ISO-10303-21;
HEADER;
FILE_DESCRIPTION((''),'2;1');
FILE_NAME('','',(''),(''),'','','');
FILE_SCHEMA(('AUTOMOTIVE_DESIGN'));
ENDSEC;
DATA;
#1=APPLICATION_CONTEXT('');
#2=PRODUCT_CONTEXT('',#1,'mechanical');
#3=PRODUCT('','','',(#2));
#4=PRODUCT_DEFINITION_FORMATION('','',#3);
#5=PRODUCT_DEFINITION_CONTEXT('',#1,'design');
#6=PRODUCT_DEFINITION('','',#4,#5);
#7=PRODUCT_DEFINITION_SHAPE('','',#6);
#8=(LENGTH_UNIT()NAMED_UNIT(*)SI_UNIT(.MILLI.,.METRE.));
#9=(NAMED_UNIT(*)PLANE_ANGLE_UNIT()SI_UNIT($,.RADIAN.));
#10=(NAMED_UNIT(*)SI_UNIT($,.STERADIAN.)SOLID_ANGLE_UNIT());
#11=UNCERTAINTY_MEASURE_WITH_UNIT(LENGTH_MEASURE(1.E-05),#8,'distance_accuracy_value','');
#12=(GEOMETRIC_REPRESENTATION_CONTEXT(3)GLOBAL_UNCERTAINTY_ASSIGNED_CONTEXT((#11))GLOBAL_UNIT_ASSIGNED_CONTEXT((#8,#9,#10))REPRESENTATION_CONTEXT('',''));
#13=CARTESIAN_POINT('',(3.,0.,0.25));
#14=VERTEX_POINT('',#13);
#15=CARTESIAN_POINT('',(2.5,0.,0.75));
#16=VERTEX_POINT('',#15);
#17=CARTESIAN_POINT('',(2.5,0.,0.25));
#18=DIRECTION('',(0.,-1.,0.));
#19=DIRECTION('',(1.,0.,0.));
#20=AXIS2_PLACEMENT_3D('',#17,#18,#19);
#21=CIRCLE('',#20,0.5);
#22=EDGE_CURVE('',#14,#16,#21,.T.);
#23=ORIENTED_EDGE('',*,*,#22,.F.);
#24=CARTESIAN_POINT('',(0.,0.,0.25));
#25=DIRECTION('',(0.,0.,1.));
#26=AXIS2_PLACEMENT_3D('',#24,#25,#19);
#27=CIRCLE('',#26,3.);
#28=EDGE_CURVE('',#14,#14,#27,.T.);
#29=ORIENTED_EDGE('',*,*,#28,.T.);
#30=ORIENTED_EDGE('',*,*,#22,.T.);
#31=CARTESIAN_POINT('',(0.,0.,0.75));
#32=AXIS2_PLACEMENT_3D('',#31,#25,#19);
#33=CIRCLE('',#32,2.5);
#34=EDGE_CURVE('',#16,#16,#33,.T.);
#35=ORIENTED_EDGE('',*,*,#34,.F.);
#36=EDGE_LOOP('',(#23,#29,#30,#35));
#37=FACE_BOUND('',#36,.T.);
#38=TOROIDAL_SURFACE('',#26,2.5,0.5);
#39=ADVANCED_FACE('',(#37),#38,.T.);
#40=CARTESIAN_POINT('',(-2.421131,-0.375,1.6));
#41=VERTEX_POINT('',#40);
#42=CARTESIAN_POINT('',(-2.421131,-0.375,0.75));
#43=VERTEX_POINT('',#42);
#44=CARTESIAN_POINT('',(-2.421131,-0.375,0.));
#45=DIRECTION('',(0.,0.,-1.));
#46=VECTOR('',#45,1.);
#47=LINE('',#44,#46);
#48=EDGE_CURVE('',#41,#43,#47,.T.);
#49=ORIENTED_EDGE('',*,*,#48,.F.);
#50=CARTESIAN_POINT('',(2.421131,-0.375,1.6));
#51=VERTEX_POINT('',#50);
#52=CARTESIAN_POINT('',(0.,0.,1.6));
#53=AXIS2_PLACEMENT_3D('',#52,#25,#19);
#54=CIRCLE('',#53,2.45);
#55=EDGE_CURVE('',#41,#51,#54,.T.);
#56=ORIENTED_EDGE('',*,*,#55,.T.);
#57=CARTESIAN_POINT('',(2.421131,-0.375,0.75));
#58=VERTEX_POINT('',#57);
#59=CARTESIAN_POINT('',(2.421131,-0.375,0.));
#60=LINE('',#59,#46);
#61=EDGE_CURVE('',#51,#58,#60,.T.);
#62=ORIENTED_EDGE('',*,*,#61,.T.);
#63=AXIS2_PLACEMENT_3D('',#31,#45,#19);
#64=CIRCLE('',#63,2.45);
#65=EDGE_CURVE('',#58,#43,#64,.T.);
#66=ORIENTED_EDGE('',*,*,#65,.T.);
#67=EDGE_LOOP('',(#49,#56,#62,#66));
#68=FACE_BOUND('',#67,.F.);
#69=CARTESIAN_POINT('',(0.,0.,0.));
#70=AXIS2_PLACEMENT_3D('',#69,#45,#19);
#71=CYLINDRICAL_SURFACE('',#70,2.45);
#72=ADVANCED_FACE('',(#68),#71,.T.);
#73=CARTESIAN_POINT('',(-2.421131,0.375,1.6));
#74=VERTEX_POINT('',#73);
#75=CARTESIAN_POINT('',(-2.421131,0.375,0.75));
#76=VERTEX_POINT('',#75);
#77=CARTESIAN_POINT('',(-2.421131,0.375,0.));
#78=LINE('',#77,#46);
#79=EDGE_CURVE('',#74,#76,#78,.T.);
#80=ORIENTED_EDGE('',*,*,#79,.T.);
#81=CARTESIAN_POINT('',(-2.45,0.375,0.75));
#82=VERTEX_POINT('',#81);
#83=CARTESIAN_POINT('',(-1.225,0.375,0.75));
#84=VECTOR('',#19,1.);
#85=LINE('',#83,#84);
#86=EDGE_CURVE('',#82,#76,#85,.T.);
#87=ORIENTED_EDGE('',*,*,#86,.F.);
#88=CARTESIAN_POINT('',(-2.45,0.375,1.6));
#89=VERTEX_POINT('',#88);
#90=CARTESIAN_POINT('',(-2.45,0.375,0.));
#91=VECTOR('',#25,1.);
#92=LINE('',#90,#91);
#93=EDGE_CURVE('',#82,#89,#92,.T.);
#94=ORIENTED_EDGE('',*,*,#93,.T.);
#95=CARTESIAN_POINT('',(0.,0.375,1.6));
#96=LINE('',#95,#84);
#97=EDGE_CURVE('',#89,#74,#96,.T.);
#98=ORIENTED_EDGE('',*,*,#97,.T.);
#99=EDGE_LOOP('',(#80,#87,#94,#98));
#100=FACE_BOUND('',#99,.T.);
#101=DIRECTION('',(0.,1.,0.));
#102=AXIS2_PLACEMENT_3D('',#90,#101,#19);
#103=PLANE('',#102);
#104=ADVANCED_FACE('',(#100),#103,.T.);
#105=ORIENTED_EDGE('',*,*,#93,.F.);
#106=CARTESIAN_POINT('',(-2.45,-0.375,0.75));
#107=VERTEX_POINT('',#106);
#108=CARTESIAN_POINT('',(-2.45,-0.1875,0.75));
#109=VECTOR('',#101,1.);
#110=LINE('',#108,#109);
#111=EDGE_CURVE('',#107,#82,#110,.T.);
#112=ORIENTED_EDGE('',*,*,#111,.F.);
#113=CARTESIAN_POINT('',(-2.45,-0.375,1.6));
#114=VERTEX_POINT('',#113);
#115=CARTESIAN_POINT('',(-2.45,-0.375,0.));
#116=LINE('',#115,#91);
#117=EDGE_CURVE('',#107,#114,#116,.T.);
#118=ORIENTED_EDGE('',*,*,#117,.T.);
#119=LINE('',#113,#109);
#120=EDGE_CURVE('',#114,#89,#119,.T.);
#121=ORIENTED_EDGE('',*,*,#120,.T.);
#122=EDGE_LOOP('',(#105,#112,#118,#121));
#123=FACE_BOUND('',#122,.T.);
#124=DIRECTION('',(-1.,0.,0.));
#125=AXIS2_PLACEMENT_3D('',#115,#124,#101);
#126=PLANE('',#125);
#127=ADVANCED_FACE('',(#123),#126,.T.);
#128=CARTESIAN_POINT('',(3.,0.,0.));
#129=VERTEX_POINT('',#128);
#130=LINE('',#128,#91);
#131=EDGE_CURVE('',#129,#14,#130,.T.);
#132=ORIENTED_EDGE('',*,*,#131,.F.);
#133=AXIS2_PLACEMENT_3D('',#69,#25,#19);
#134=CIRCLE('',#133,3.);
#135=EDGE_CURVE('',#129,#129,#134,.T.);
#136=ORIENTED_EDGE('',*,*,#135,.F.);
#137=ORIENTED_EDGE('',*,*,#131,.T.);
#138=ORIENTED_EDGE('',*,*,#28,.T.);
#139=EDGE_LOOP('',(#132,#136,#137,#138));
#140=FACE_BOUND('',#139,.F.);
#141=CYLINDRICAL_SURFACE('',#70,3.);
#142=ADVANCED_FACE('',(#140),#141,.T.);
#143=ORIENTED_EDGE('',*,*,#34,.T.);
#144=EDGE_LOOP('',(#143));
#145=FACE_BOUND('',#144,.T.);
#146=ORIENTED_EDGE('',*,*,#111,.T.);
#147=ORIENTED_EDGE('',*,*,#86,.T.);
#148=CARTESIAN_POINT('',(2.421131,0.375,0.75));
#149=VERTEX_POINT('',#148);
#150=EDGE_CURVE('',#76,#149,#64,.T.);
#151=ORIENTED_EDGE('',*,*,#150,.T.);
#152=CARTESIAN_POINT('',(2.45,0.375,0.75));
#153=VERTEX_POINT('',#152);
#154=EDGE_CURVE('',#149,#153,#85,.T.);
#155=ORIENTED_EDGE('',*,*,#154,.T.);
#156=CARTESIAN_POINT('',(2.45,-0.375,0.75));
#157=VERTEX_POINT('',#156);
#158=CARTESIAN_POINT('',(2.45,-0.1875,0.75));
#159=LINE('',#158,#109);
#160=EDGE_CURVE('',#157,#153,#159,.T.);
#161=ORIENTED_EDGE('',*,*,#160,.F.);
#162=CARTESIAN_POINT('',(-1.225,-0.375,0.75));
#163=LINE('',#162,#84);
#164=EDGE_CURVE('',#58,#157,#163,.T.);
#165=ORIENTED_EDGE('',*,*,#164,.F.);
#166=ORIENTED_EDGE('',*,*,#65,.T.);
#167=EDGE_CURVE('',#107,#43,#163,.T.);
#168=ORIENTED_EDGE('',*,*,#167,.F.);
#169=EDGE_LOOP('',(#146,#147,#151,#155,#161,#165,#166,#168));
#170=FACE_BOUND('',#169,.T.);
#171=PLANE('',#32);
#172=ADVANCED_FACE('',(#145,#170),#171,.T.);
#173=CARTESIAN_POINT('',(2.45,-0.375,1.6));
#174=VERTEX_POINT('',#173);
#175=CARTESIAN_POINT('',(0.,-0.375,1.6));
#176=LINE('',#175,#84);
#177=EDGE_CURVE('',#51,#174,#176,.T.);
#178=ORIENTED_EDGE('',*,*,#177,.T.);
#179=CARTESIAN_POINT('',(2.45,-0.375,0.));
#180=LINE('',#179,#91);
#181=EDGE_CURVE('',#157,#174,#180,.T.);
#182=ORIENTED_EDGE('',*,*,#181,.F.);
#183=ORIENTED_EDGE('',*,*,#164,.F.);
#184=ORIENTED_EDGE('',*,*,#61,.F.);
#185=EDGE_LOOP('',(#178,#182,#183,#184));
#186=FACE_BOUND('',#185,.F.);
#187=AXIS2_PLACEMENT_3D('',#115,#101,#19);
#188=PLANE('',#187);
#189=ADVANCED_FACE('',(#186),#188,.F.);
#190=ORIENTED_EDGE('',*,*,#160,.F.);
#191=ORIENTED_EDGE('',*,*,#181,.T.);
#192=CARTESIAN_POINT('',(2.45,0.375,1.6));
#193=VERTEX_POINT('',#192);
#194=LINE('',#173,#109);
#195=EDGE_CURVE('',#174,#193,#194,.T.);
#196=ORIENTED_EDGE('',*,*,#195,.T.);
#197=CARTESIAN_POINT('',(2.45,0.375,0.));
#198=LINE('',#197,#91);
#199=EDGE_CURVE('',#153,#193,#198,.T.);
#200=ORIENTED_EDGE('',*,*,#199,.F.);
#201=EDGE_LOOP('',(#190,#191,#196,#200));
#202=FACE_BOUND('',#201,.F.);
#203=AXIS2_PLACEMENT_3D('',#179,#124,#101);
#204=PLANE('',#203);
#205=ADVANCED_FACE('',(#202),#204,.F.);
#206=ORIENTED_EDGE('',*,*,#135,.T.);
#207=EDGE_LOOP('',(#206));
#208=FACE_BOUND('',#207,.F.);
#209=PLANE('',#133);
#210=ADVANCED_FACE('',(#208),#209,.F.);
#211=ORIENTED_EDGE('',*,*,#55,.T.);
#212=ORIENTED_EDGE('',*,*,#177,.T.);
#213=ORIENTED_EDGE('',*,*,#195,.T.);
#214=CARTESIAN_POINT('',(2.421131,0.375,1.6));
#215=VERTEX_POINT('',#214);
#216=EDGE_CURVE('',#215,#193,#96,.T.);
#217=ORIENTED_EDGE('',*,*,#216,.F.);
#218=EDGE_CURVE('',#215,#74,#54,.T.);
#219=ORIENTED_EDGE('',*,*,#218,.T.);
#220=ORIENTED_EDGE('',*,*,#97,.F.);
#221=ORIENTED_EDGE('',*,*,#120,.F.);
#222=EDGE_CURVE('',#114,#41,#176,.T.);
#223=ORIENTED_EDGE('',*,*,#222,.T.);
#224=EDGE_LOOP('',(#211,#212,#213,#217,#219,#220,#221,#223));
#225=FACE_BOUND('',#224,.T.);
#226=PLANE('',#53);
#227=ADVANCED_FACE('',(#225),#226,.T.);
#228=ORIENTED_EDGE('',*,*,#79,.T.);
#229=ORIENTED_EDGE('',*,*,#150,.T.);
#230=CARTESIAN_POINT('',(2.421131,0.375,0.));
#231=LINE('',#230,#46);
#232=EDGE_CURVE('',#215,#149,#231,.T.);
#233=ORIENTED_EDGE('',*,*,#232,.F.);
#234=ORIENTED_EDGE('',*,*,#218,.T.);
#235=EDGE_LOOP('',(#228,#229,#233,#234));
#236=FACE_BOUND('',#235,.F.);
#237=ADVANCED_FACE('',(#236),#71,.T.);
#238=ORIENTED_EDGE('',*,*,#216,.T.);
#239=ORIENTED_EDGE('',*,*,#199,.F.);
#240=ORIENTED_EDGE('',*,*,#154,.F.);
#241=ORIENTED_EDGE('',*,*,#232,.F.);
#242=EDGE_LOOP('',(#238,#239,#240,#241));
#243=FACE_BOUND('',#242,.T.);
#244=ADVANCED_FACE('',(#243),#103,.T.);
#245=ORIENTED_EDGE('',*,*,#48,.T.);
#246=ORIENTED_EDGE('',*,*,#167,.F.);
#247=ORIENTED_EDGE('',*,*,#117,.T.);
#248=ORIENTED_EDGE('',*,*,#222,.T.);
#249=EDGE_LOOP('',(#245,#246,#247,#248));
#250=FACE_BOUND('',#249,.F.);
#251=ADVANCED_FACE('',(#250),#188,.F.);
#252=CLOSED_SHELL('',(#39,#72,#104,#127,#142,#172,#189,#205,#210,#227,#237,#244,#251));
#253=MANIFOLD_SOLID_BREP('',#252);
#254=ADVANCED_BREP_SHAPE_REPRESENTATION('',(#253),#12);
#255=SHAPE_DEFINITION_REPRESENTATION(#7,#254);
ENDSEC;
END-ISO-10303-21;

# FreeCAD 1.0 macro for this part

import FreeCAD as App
import Part
import Sketcher

V = App.Vector
Q = App.Units.Quantity


def edges_at(feature, points):
    """Names of the edges that pass closest to the given points."""
    edges = feature.Shape.Edges
    near = lambda p: min(range(len(edges)), key=lambda i: edges[i].distToShape(Part.Vertex(*p))[0])
    return sorted({f"Edge{near(p) + 1}" for p in points})


def add_polygon(sketch, points):
    """Adds a closed chain of lines whose ends are joined by coincident constraints."""
    first, n = sketch.GeometryCount, len(points)
    for a, b in zip(points, points[1:] + points[:1]):
        sketch.addGeometry(Part.LineSegment(App.Vector(*a, 0), App.Vector(*b, 0)), False)
    for i in range(n):
        sketch.addConstraint(Sketcher.Constraint("Coincident", first + i, 2, first + (i + 1) % n, 1))

doc = App.newDocument("Part")
params = doc.addObject("Spreadsheet::Sheet", "Params")
for row, (alias, value) in enumerate([
    ("sketch1_diameter", "4.9 mm"),
    ("pad1_length", "1.6 mm"),
    ("sketch2_width", "4.9 mm"),
    ("sketch2_height", "0.75 mm"),
    ("pad2_length", "1.6 mm"),
    ("sketch3_diameter", "6 mm"),
    ("pad3_length", "0.75 mm"),
    ("fillet_radius", "0.5 mm"),
], start=1):
    params.set(f"A{row}", alias)
    params.set(f"B{row}", "=" + value)
    params.setAlias(f"B{row}", alias)

body = doc.addObject("PartDesign::Body", "Body")

sketch1 = body.newObject("Sketcher::SketchObject", "Sketch")
sketch1.AttachmentSupport = (doc.getObject("XY_Plane"), [""])
sketch1.MapMode = "FlatFace"
sketch1.addGeometry(Part.Circle(V(0, 0, 0), V(0, 0, 1), 2.5), False)
sketch1.addConstraint([
    Sketcher.Constraint("Coincident", 0, 3, -1, 1),
    Sketcher.Constraint("Diameter", 0, Q("4.9 mm")),
])
sketch1.setExpression("Constraints[1]", "Params.sketch1_diameter")
pad1 = body.newObject("PartDesign::Pad", "Pad")
pad1.Profile = sketch1
pad1.setExpression("Length", "Params.pad1_length")

sketch2 = body.newObject("Sketcher::SketchObject", "Sketch001")
sketch2.AttachmentSupport = (doc.getObject("XY_Plane"), [""])
sketch2.MapMode = "FlatFace"
add_polygon(sketch2, [(-2.5, 0.4), (-2.5, -0.4), (2.5, -0.4), (2.5, 0.4)])
sketch2.addConstraint([
    Sketcher.Constraint("Vertical", 0),
    Sketcher.Constraint("Horizontal", 1),
    Sketcher.Constraint("Vertical", 2),
    Sketcher.Constraint("Horizontal", 3),
    Sketcher.Constraint("Symmetric", 0, 2, 2, 2, -1, 1),
    Sketcher.Constraint("DistanceX", 1, 1, 1, 2, Q("4.9 mm")),
    Sketcher.Constraint("DistanceY", 0, 2, 0, 1, Q("0.75 mm")),
])
sketch2.setExpression("Constraints[9]", "Params.sketch2_width")
sketch2.setExpression("Constraints[10]", "Params.sketch2_height")
pad2 = body.newObject("PartDesign::Pad", "Pad001")
pad2.Profile = sketch2
pad2.setExpression("Length", "Params.pad2_length")

sketch3 = body.newObject("Sketcher::SketchObject", "Sketch002")
sketch3.AttachmentSupport = (doc.getObject("XY_Plane"), [""])
sketch3.MapMode = "FlatFace"
sketch3.addGeometry(Part.Circle(V(0, 0, 0), V(0, 0, 1), 3), False)
sketch3.addConstraint([
    Sketcher.Constraint("Coincident", 0, 3, -1, 1),
    Sketcher.Constraint("Diameter", 0, Q("6 mm")),
])
sketch3.setExpression("Constraints[1]", "Params.sketch3_diameter")
pad3 = body.newObject("PartDesign::Pad", "Pad002")
pad3.Profile = sketch3
pad3.setExpression("Length", "Params.pad3_length")
doc.recompute()

fillet = body.newObject("PartDesign::Fillet", "Fillet")
fillet.Base = (pad3, edges_at(pad3, [(-3, 0, 0.75)]))
fillet.setExpression("Radius", "Params.fillet_radius")

doc.recompute()
